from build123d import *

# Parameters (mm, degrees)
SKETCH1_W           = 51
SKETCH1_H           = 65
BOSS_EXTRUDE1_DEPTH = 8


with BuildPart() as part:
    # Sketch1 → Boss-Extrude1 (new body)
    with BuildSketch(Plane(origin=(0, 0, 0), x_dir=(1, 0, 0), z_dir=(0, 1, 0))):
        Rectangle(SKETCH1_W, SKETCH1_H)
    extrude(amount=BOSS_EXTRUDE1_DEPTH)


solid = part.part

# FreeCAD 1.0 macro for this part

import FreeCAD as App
import Part
import Sketcher

V = App.Vector

doc = App.newDocument("Part")
params = doc.addObject("Spreadsheet::Sheet", "Params")
for row, (alias, value) in enumerate([
    ("sketch1_width", "51 mm"),
    ("sketch1_height", "65 mm"),
    ("pad1_length", "8 mm"),
], start=1):
    params.set(f"A{row}", alias)
    params.set(f"B{row}", "=" + value)
    params.setAlias(f"B{row}", alias)

body = doc.addObject("PartDesign::Body", "Body")

# Sketch on XZ plane
sketch1 = body.newObject("Sketcher::SketchObject", "Sketch")
sketch1.AttachmentSupport = (doc.getObject("XZ_Plane"), [""])
sketch1.MapMode = "FlatFace"
sketch1.addGeometry([
    Part.LineSegment(V(-25.5, -32.5, 0), V(-25.5, 32.5, 0)),
    Part.LineSegment(V(-25.5, 32.5, 0), V(25.5, 32.5, 0)),
    Part.LineSegment(V(25.5, 32.5, 0), V(25.5, -32.5, 0)),
    Part.LineSegment(V(25.5, -32.5, 0), V(-25.5, -32.5, 0)),
], False)
sketch1.addConstraint([
    Sketcher.Constraint("Coincident", 0, 2, 1, 1),
    Sketcher.Constraint("Coincident", 1, 2, 2, 1),
    Sketcher.Constraint("Coincident", 2, 2, 3, 1),
    Sketcher.Constraint("Coincident", 3, 2, 0, 1),
    Sketcher.Constraint("Vertical", 0),
    Sketcher.Constraint("Horizontal", 1),
    Sketcher.Constraint("Vertical", 2),
    Sketcher.Constraint("Horizontal", 3),
    Sketcher.Constraint("Symmetric", 0, 2, 2, 2, -1, 1),
    Sketcher.Constraint("DistanceX", 1, 1, 1, 2, 51.0),
    Sketcher.Constraint("DistanceY", 0, 1, 0, 2, 65.0),
])
sketch1.setExpression("Constraints[9]", "Params.sketch1_width")
sketch1.setExpression("Constraints[10]", "Params.sketch1_height")
pad1 = body.newObject("PartDesign::Pad", "Pad")
pad1.Profile = sketch1
pad1.setExpression("Length", "Params.pad1_length")
pad1.Reversed = True

doc.recompute()
